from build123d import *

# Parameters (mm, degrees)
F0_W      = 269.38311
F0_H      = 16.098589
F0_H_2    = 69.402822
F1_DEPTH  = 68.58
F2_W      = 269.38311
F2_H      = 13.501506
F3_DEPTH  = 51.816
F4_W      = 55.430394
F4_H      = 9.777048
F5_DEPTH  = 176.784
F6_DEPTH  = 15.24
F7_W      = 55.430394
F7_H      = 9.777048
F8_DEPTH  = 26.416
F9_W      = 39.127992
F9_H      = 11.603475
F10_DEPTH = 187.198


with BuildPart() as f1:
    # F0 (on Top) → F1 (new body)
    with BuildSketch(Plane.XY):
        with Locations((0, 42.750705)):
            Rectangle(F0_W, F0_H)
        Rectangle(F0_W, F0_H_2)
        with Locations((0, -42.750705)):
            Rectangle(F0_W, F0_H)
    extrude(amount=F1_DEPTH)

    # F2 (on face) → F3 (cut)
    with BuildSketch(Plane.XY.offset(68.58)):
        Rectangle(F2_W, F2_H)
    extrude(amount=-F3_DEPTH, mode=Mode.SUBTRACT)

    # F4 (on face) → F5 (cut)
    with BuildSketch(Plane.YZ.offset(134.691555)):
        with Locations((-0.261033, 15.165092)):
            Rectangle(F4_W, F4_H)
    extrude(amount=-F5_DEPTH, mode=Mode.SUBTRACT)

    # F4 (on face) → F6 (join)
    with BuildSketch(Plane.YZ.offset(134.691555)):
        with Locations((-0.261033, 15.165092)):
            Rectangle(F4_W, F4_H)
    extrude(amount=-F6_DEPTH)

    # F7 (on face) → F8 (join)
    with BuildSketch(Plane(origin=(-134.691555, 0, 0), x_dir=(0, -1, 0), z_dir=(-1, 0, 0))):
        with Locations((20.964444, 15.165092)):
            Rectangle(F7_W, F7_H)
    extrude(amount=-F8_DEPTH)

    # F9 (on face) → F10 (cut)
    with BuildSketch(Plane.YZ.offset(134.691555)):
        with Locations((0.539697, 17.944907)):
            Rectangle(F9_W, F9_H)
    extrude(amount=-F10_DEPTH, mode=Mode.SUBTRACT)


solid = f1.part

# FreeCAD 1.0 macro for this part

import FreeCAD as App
import Part
import Sketcher

V = App.Vector
Q = App.Units.Quantity


def add_polygon(sketch, points):
    """Adds a closed chain of lines whose ends are joined by coincident constraints."""
    first, n = sketch.GeometryCount, len(points)
    for a, b in zip(points, points[1:] + points[:1]):
        sketch.addGeometry(Part.LineSegment(App.Vector(*a, 0), App.Vector(*b, 0)), False)
    for i in range(n):
        sketch.addConstraint(Sketcher.Constraint("Coincident", first + i, 2, first + (i + 1) % n, 1))

doc = App.newDocument("Part")
body = doc.addObject("PartDesign::Body", "Body")

# Sketch on XY plane
sketch1 = body.newObject("Sketcher::SketchObject", "Sketch")
sketch1.AttachmentSupport = (doc.getObject("XY_Plane"), [""])
sketch1.MapMode = "FlatFace"
add_polygon(sketch1, [(-134.691555, -50.799999), (134.691555, -50.799999), (134.691555, 50.799999), (-134.691555, 50.799999)])  # lines 0-3
sketch1.addConstraint(Sketcher.Constraint("Horizontal", 0))
sketch1.addConstraint(Sketcher.Constraint("Vertical", 1))
sketch1.addConstraint(Sketcher.Constraint("Horizontal", 2))
sketch1.addConstraint(Sketcher.Constraint("Vertical", 3))
sketch1.addConstraint(Sketcher.Constraint("Symmetric", 0, 2, 2, 2, -1, 1))
sketch1.addConstraint(Sketcher.Constraint("DistanceY", 1, 1, 1, 2, Q("4 in")))
sketch1.addConstraint(Sketcher.Constraint("DistanceX", 0, 1, 0, 2, 269.38311))
pad1 = body.newObject("PartDesign::Pad", "Pad")
pad1.Profile = sketch1
pad1.Length = Q("2.7 in")

# Sketch on XY plane
sketch2 = body.newObject("Sketcher::SketchObject", "Sketch001")
sketch2.AttachmentSupport = (doc.getObject("XY_Plane"), [""])
sketch2.MapMode = "FlatFace"
sketch2.AttachmentOffset = App.Placement(V(0, 0, 2.7 * 25.4), App.Rotation())
add_polygon(sketch2, [(-134.691555, 6.750753), (-134.691555, -6.750753), (134.691555, -6.750753), (134.691555, 6.750753)])  # lines 0-3
sketch2.addConstraint(Sketcher.Constraint("Vertical", 0))
sketch2.addConstraint(Sketcher.Constraint("Horizontal", 1))
sketch2.addConstraint(Sketcher.Constraint("Vertical", 2))
sketch2.addConstraint(Sketcher.Constraint("Horizontal", 3))
sketch2.addConstraint(Sketcher.Constraint("Symmetric", 0, 2, 2, 2, -1, 1))
sketch2.addConstraint(Sketcher.Constraint("DistanceX", 1, 1, 1, 2, 269.38311))
sketch2.addConstraint(Sketcher.Constraint("DistanceY", 0, 2, 0, 1, 13.501506))
pocket1 = body.newObject("PartDesign::Pocket", "Pocket")
pocket1.Profile = sketch2
pocket1.Length = Q("2.04 in")

# Sketch on YZ plane
sketch3 = body.newObject("Sketcher::SketchObject", "Sketch002")
sketch3.AttachmentSupport = (doc.getObject("YZ_Plane"), [""])
sketch3.MapMode = "FlatFace"
sketch3.AttachmentOffset = App.Placement(V(0, 0, 134.691555), App.Rotation())
add_polygon(sketch3, [(-27.97623, 20.053616), (-27.97623, 10.276568), (27.454164, 10.276568), (27.454164, 20.053616)])  # lines 0-3
sketch3.addConstraint(Sketcher.Constraint("Vertical", 0))
sketch3.addConstraint(Sketcher.Constraint("Horizontal", 1))
sketch3.addConstraint(Sketcher.Constraint("Vertical", 2))
sketch3.addConstraint(Sketcher.Constraint("Horizontal", 3))
sketch3.addConstraint(Sketcher.Constraint("DistanceY", 0, 2, 0, 1, 9.777048))
sketch3.addConstraint(Sketcher.Constraint("DistanceX", 1, 1, 1, 2, 55.430394))
sketch3.addConstraint(Sketcher.Constraint("DistanceX", 0, 2, -1, 1, 27.97623))
sketch3.addConstraint(Sketcher.Constraint("DistanceY", -1, 1, 0, 2, 10.276568))
pocket2 = body.newObject("PartDesign::Pocket", "Pocket001")
pocket2.Profile = sketch3
pocket2.Length = Q("6.96 in")

# Sketch on YZ plane
sketch4 = body.newObject("Sketcher::SketchObject", "Sketch003")
sketch4.AttachmentSupport = (doc.getObject("YZ_Plane"), [""])
sketch4.MapMode = "FlatFace"
sketch4.AttachmentOffset = App.Placement(V(0, 0, 134.691555), App.Rotation())
add_polygon(sketch4, [(-27.97623, 20.053616), (-27.97623, 10.276568), (27.454164, 10.276568), (27.454164, 20.053616)])  # lines 0-3
sketch4.addConstraint(Sketcher.Constraint("Vertical", 0))
sketch4.addConstraint(Sketcher.Constraint("Horizontal", 1))
sketch4.addConstraint(Sketcher.Constraint("Vertical", 2))
sketch4.addConstraint(Sketcher.Constraint("Horizontal", 3))
sketch4.addConstraint(Sketcher.Constraint("DistanceY", 0, 2, 0, 1, 9.777048))
sketch4.addConstraint(Sketcher.Constraint("DistanceX", 1, 1, 1, 2, 55.430394))
sketch4.addConstraint(Sketcher.Constraint("DistanceX", 0, 2, -1, 1, 27.97623))
sketch4.addConstraint(Sketcher.Constraint("DistanceY", -1, 1, 0, 2, 10.276568))
pad2 = body.newObject("PartDesign::Pad", "Pad001")
pad2.Profile = sketch4
pad2.Length = Q("0.6 in")
pad2.Reversed = True

# Sketch on YZ plane
sketch5 = body.newObject("Sketcher::SketchObject", "Sketch004")
sketch5.AttachmentSupport = (doc.getObject("YZ_Plane"), [""])
sketch5.MapMode = "FlatFace"
sketch5.AttachmentOffset = App.Placement(V(0, 0, -134.691555), App.Rotation())
add_polygon(sketch5, [(6.750753, 20.053616), (6.750753, 10.276568), (-48.679641, 10.276568), (-48.679641, 20.053616)])  # lines 0-3
sketch5.addConstraint(Sketcher.Constraint("Vertical", 0))
sketch5.addConstraint(Sketcher.Constraint("Horizontal", 1))
sketch5.addConstraint(Sketcher.Constraint("Vertical", 2))
sketch5.addConstraint(Sketcher.Constraint("Horizontal", 3))
sketch5.addConstraint(Sketcher.Constraint("DistanceY", 0, 2, 0, 1, 9.777048))
sketch5.addConstraint(Sketcher.Constraint("DistanceX", 1, 2, 1, 1, 55.430394))
sketch5.addConstraint(Sketcher.Constraint("DistanceX", 1, 2, -1, 1, 48.679641))
sketch5.addConstraint(Sketcher.Constraint("DistanceY", -1, 1, 0, 2, 10.276568))
pad3 = body.newObject("PartDesign::Pad", "Pad002")
pad3.Profile = sketch5
pad3.Length = Q("1.04 in")

# Sketch on YZ plane
sketch6 = body.newObject("Sketcher::SketchObject", "Sketch005")
sketch6.AttachmentSupport = (doc.getObject("YZ_Plane"), [""])
sketch6.MapMode = "FlatFace"
sketch6.AttachmentOffset = App.Placement(V(0, 0, 134.691555), App.Rotation())
add_polygon(sketch6, [(-19.024299, 23.746644), (-19.024299, 12.14317), (20.103693, 12.14317), (20.103693, 23.746644)])  # lines 0-3
sketch6.addConstraint(Sketcher.Constraint("Vertical", 0))
sketch6.addConstraint(Sketcher.Constraint("Horizontal", 1))
sketch6.addConstraint(Sketcher.Constraint("Vertical", 2))
sketch6.addConstraint(Sketcher.Constraint("Horizontal", 3))
sketch6.addConstraint(Sketcher.Constraint("DistanceX", 0, 2, -1, 1, 19.024299))
sketch6.addConstraint(Sketcher.Constraint("DistanceX", 1, 1, 1, 2, 39.127992))
sketch6.addConstraint(Sketcher.Constraint("DistanceY", 0, 2, 0, 1, 11.603475))
sketch6.addConstraint(Sketcher.Constraint("DistanceY", -1, 1, 0, 2, 12.14317))
pocket3 = body.newObject("PartDesign::Pocket", "Pocket002")
pocket3.Profile = sketch6
pocket3.Length = Q("7.37 in")

doc.recompute()
